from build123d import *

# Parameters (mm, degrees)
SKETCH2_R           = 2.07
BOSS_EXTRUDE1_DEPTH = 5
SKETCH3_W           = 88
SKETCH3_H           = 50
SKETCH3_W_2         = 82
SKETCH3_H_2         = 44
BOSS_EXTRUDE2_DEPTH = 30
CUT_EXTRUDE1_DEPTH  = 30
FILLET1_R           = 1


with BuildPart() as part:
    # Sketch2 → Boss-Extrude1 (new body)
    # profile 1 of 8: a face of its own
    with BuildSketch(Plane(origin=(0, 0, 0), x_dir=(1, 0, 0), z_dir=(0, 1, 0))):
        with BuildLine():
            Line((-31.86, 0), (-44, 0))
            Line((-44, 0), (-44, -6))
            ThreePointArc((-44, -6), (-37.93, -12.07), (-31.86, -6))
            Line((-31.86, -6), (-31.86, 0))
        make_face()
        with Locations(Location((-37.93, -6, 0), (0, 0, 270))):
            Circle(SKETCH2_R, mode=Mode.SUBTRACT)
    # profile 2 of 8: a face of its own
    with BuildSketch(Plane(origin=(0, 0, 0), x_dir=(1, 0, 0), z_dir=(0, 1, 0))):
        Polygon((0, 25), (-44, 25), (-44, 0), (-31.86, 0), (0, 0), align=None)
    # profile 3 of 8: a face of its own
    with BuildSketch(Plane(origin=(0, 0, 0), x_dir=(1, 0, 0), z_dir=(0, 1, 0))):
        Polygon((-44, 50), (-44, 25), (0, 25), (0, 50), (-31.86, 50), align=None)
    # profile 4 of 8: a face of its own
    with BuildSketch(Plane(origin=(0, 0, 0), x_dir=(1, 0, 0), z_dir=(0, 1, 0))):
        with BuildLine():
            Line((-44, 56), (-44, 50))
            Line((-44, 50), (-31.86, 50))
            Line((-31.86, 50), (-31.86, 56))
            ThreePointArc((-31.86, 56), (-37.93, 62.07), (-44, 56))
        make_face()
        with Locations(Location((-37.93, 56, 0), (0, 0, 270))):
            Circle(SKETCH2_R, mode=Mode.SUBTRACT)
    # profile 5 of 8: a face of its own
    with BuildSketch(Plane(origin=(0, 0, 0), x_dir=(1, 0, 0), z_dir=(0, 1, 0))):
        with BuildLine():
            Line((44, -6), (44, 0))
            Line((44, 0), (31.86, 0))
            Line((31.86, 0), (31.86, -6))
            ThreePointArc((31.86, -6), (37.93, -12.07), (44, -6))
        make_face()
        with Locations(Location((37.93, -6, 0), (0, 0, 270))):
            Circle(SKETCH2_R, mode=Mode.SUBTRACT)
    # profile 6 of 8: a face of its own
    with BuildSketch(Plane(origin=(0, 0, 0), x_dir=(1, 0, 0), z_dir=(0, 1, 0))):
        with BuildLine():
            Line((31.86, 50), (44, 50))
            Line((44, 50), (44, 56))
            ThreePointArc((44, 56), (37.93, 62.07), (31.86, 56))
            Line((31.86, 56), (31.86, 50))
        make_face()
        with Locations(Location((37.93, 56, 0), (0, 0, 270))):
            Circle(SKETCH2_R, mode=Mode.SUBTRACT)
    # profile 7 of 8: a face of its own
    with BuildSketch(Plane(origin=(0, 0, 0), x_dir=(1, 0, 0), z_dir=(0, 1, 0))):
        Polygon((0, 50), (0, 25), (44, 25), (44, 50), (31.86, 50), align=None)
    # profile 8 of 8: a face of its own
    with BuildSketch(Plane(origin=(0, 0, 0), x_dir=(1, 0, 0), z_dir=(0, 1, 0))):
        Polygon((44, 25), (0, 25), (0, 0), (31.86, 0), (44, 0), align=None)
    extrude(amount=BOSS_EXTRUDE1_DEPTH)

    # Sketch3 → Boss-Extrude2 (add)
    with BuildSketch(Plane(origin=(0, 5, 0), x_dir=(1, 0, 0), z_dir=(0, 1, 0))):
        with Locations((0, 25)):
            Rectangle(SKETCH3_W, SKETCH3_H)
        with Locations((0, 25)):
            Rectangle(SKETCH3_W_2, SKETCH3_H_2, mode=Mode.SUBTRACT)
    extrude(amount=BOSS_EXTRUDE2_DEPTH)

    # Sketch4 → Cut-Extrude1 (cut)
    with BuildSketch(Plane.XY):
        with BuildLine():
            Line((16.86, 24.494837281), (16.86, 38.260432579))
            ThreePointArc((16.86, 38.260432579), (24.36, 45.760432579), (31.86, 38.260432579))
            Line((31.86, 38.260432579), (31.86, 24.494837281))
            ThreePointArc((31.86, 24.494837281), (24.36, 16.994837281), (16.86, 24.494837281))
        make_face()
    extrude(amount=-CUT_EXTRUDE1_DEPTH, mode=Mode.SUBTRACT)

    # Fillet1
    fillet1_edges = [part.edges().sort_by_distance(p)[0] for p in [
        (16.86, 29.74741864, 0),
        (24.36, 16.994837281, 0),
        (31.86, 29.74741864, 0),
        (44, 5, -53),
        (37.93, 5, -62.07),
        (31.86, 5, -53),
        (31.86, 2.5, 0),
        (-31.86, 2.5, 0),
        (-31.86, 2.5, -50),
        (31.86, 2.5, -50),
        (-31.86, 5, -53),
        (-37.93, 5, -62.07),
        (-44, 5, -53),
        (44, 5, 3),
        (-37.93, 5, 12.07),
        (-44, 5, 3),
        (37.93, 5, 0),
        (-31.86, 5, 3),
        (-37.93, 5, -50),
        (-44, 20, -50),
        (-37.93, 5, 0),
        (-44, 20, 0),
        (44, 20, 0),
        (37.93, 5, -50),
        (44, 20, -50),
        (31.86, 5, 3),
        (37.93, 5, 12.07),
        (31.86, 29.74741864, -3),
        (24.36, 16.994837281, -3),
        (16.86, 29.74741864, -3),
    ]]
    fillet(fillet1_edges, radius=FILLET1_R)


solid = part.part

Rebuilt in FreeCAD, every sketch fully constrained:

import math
import FreeCAD as App
import Part
import Sketcher

V = App.Vector


def edges_at(feature, points):
    """Names of the edges that pass closest to the given points."""
    edges = feature.Shape.Edges
    near = lambda p: min(range(len(edges)), key=lambda i: edges[i].distToShape(Part.Vertex(*p))[0])
    return sorted({f"Edge{near(p) + 1}" for p in points})

doc = App.newDocument("Part")
body = doc.addObject("PartDesign::Body", "Body")

# Sketch on XZ plane
sketch1 = body.newObject("Sketcher::SketchObject", "Sketch")
sketch1.AttachmentSupport = (doc.getObject("XZ_Plane"), [""])
sketch1.MapMode = "FlatFace"
sketch1.addGeometry([
    Part.LineSegment(V(-31.86, 6, 0), V(-31.86, 0, 0)),  # 0
    Part.LineSegment(V(-31.86, 0, 0), V(31.86, 0, 0)),  # 1
    Part.LineSegment(V(31.86, 0, 0), V(31.86, 6, 0)),  # 2
    Part.ArcOfCircle(Part.Circle(V(37.93, 6, 0), V(0, 0, 1), 6.07), math.radians(0), math.radians(180)),  # 3
    Part.LineSegment(V(44, 6, 0), V(44, -56, 0)),  # 4
    Part.ArcOfCircle(Part.Circle(V(37.93, -56, 0), V(0, 0, 1), 6.07), math.radians(180), math.radians(360)),  # 5
    Part.LineSegment(V(31.86, -56, 0), V(31.86, -50, 0)),  # 6
    Part.LineSegment(V(31.86, -50, 0), V(-31.86, -50, 0)),  # 7
    Part.LineSegment(V(-31.86, -50, 0), V(-31.86, -56, 0)),  # 8
    Part.ArcOfCircle(Part.Circle(V(-37.93, -56, 0), V(0, 0, 1), 6.07), math.radians(180), math.radians(360)),  # 9
    Part.LineSegment(V(-44, -56, 0), V(-44, 6, 0)),  # 10
    Part.ArcOfCircle(Part.Circle(V(-37.93, 6, 0), V(0, 0, 1), 6.07), math.radians(0), math.radians(180)),  # 11
    Part.Circle(V(-37.93, 6, 0), V(0, 0, 1), 2.07),  # 12
    Part.Circle(V(-37.93, -56, 0), V(0, 0, 1), 2.07),  # 13
    Part.Circle(V(37.93, 6, 0), V(0, 0, 1), 2.07),  # 14
    Part.Circle(V(37.93, -56, 0), V(0, 0, 1), 2.07),  # 15
], False)
sketch1.addConstraint([
    Sketcher.Constraint("Coincident", 0, 2, 1, 1),
    Sketcher.Constraint("Coincident", 1, 2, 2, 1),
    Sketcher.Constraint("Tangent", 2, 2, 3, 2),
    Sketcher.Constraint("Tangent", 3, 1, 4, 1),
    Sketcher.Constraint("Tangent", 4, 2, 5, 2),
    Sketcher.Constraint("Tangent", 5, 1, 6, 1),
    Sketcher.Constraint("Coincident", 6, 2, 7, 1),
    Sketcher.Constraint("Coincident", 7, 2, 8, 1),
    Sketcher.Constraint("Tangent", 8, 2, 9, 2),
    Sketcher.Constraint("Tangent", 9, 1, 10, 1),
    Sketcher.Constraint("Tangent", 10, 2, 11, 2),
    Sketcher.Constraint("Tangent", 11, 1, 0, 1),
    Sketcher.Constraint("Vertical", 0),
    Sketcher.Constraint("Horizontal", 1),
    Sketcher.Constraint("Vertical", 2),
    Sketcher.Constraint("Vertical", 4),
    Sketcher.Constraint("Vertical", 6),
    Sketcher.Constraint("Horizontal", 7),
    Sketcher.Constraint("Vertical", 8),
    Sketcher.Constraint("Vertical", 10),
    Sketcher.Constraint("Coincident", 12, 3, 11, 3),
    Sketcher.Constraint("Coincident", 13, 3, 9, 3),
    Sketcher.Constraint("Coincident", 14, 3, 3, 3),
    Sketcher.Constraint("Coincident", 15, 3, 5, 3),
    Sketcher.Constraint("Equal", 3, 5),
    Sketcher.Constraint("Equal", 5, 9),
    Sketcher.Constraint("Equal", 9, 11),
    Sketcher.Constraint("Equal", 12, 13),
    Sketcher.Constraint("Equal", 13, 14),
    Sketcher.Constraint("Equal", 14, 15),
    Sketcher.Constraint("Symmetric", 0, 2, 1, 2, -1, 1),
    Sketcher.Constraint("Horizontal", 5, 3, 9, 3),
    Sketcher.Constraint("Horizontal", 3, 3, 11, 3),
    Sketcher.Constraint("Equal", 2, 6),
    Sketcher.Constraint("Diameter", 12, 4.14),
    Sketcher.Constraint("DistanceY", 0, 2, 0, 1, 6.0),
    Sketcher.Constraint("DistanceY", 4, 2, 4, 1, 62.0),
    Sketcher.Constraint("Radius", 3, 6.07),
    Sketcher.Constraint("DistanceX", -1, 1, 3, 1, 44.0),
])
pad1 = body.newObject("PartDesign::Pad", "Pad")
pad1.Profile = sketch1
pad1.Length = 5
pad1.Reversed = True

# Sketch on XZ plane
sketch2 = body.newObject("Sketcher::SketchObject", "Sketch001")
sketch2.AttachmentSupport = (doc.getObject("XZ_Plane"), [""])
sketch2.MapMode = "FlatFace"
sketch2.AttachmentOffset = App.Placement(V(0, 0, -5), App.Rotation())
sketch2.addGeometry([
    Part.LineSegment(V(-44, -50, 0), V(-44, 0, 0)),  # 0
    Part.LineSegment(V(-44, 0, 0), V(44, 0, 0)),  # 1
    Part.LineSegment(V(44, 0, 0), V(44, -50, 0)),  # 2
    Part.LineSegment(V(44, -50, 0), V(-44, -50, 0)),  # 3
    Part.LineSegment(V(41, -3, 0), V(-41, -3, 0)),  # 4
    Part.LineSegment(V(-41, -3, 0), V(-41, -47, 0)),  # 5
    Part.LineSegment(V(-41, -47, 0), V(41, -47, 0)),  # 6
    Part.LineSegment(V(41, -47, 0), V(41, -3, 0)),  # 7
], False)
sketch2.addConstraint([
    Sketcher.Constraint("Coincident", 0, 2, 1, 1),
    Sketcher.Constraint("Coincident", 1, 2, 2, 1),
    Sketcher.Constraint("Coincident", 2, 2, 3, 1),
    Sketcher.Constraint("Coincident", 3, 2, 0, 1),
    Sketcher.Constraint("Coincident", 4, 2, 5, 1),
    Sketcher.Constraint("Coincident", 5, 2, 6, 1),
    Sketcher.Constraint("Coincident", 6, 2, 7, 1),
    Sketcher.Constraint("Coincident", 7, 2, 4, 1),
    Sketcher.Constraint("Vertical", 0),
    Sketcher.Constraint("Horizontal", 1),
    Sketcher.Constraint("Vertical", 2),
    Sketcher.Constraint("Horizontal", 3),
    Sketcher.Constraint("Horizontal", 4),
    Sketcher.Constraint("Vertical", 5),
    Sketcher.Constraint("Horizontal", 6),
    Sketcher.Constraint("Vertical", 7),
    Sketcher.Constraint("Symmetric", 0, 2, 1, 2, -1, 1),
    Sketcher.Constraint("DistanceX", 1, 1, 1, 2, 88.0),
    Sketcher.Constraint("DistanceX", 4, 2, 4, 1, 82.0),
    Sketcher.Constraint("DistanceY", 0, 1, 0, 2, 50.0),
    Sketcher.Constraint("DistanceY", 5, 2, 5, 1, 44.0),
    Sketcher.Constraint("DistanceX", 4, 2, -1, 1, 41.0),
    Sketcher.Constraint("DistanceY", 4, 2, -1, 1, 3.0),
])
pad2 = body.newObject("PartDesign::Pad", "Pad001")
pad2.Profile = sketch2
pad2.Length = 30
pad2.Reversed = True

# Sketch on XY plane
sketch3 = body.newObject("Sketcher::SketchObject", "Sketch002")
sketch3.AttachmentSupport = (doc.getObject("XY_Plane"), [""])
sketch3.MapMode = "FlatFace"
sketch3.addGeometry([
    Part.LineSegment(V(16.86, 38.260433, 0), V(16.86, 24.494837, 0)),
    Part.ArcOfCircle(Part.Circle(V(24.36, 24.494837, 0), V(0, 0, 1), 7.5), math.radians(180), math.radians(360)),
    Part.LineSegment(V(31.86, 24.494837, 0), V(31.86, 38.260433, 0)),
    Part.ArcOfCircle(Part.Circle(V(24.36, 38.260433, 0), V(0, 0, 1), 7.5), math.radians(0), math.radians(180)),
], False)
sketch3.addConstraint([
    Sketcher.Constraint("Tangent", 0, 2, 1, 1),
    Sketcher.Constraint("Tangent", 1, 2, 2, 1),
    Sketcher.Constraint("Tangent", 2, 2, 3, 1),
    Sketcher.Constraint("Tangent", 3, 2, 0, 1),
    Sketcher.Constraint("Vertical", 0),
    Sketcher.Constraint("Vertical", 2),
    Sketcher.Constraint("Radius", 1, 7.5),
    Sketcher.Constraint("DistanceX", -1, 1, 1, 3, 24.36),
    Sketcher.Constraint("DistanceY", 0, 2, 0, 1, 13.765595),
    Sketcher.Constraint("DistanceY", -1, 1, 1, 3, 24.494837),
])
pocket1 = body.newObject("PartDesign::Pocket", "Pocket")
pocket1.Profile = sketch3
pocket1.Length = 30
doc.recompute()

fillet = body.newObject("PartDesign::Fillet", "Fillet")
fillet.Base = (pocket1, edges_at(pocket1, [
    (16.86, 29.747, 0),
    (24.36, 16.995, 0),
    (31.86, 29.747, 0),
    (44, 5, -53),
    (37.93, 5, -62.07),
    (31.86, 5, -53),
    (31.86, 2.5, 0),
    (-31.86, 2.5, 0),
    (-31.86, 2.5, -50),
    (31.86, 2.5, -50),
    (-31.86, 5, -53),
    (-37.93, 5, -62.07),
    (-44, 5, -53),
    (44, 5, 3),
    (-37.93, 5, 12.07),
    (-44, 5, 3),
    (37.93, 5, 0),
    (-31.86, 5, 3),
    (-37.93, 5, -50),
    (-44, 20, -50),
    (-37.93, 5, 0),
    (-44, 20, 0),
    (44, 20, 0),
    (37.93, 5, -50),
    (44, 20, -50),
    (31.86, 5, 3),
    (37.93, 5, 12.07),
    (31.86, 29.747, -3),
    (24.36, 16.995, -3),
    (16.86, 29.747, -3),
]))
fillet.Radius = 1

doc.recompute()
